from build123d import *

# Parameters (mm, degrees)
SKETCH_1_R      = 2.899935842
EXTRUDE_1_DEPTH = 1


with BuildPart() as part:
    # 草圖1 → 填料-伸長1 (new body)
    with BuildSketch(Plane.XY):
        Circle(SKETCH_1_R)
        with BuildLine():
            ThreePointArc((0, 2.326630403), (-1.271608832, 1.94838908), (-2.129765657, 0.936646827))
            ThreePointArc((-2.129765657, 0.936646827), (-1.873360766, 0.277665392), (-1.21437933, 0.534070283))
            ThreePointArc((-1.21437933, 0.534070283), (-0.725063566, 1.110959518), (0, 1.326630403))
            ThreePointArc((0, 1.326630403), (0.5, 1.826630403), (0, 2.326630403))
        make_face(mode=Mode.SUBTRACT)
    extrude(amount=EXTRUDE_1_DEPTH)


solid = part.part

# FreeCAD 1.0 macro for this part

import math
import FreeCAD as App
import Part
import Sketcher
from FreeCAD import Vector
Q = App.Units.Quantity

doc = App.newDocument("Part")
body = doc.addObject("PartDesign::Body", "Body")

# Sketch on XY plane
sketch1 = doc.addObject("Sketcher::SketchObject", "Sketch")
body.addObject(sketch1)
sketch1.AttachmentSupport = (doc.XY_Plane, [""])
sketch1.MapMode = "FlatFace"
sketch1.addGeometry([
    Part.Circle(Vector(0, 0, 0), Vector(0, 0, 1), 2.9),  # 0
    Part.ArcOfCircle(Part.Circle(Vector(0, 0, 0), Vector(0, 0, 1), 2.3), math.radians(90), math.radians(156)),  # 1
    Part.ArcOfCircle(Part.Circle(Vector(0, 1.8, 0), Vector(0, 0, 1), 0.5), math.radians(-90), math.radians(90)),  # 2
    Part.ArcOfCircle(Part.Circle(Vector(0, 0, 0), Vector(0, 0, 1), 1.3), math.radians(90), math.radians(156)),  # 3
    Part.ArcOfCircle(Part.Circle(Vector(-1.7, 0.7, 0), Vector(0, 0, 1), 0.5), math.radians(156), math.radians(336)),  # 4
], False)
sketch1.addConstraint([
    Sketcher.Constraint("Tangent", 1, 1, 2, 2),
    Sketcher.Constraint("Tangent", 2, 1, 3, 1),
    Sketcher.Constraint("Tangent", 3, 2, 4, 2),
    Sketcher.Constraint("Tangent", 4, 1, 1, 2),
    Sketcher.Constraint("Coincident", 0, 3, -1, 1),
    Sketcher.Constraint("Coincident", 1, 3, -1, 1),
    Sketcher.Constraint("Coincident", 3, 3, -1, 1),
    Sketcher.Constraint("PointOnObject", 2, 3, -2),
    Sketcher.Constraint("Radius", 2, Q("0.5 mm")),
    Sketcher.Constraint("Diameter", 0, Q("5.799872 mm")),
    Sketcher.Constraint("Radius", 1, Q("2.32663 mm")),
    Sketcher.Constraint("DistanceY", -1, 1, 4, 3, Q("0.735359 mm")),
])
pad1 = doc.addObject("PartDesign::Pad", "Pad")
body.addObject(pad1)
pad1.Profile = sketch1
pad1.Length = 1

doc.recompute()
